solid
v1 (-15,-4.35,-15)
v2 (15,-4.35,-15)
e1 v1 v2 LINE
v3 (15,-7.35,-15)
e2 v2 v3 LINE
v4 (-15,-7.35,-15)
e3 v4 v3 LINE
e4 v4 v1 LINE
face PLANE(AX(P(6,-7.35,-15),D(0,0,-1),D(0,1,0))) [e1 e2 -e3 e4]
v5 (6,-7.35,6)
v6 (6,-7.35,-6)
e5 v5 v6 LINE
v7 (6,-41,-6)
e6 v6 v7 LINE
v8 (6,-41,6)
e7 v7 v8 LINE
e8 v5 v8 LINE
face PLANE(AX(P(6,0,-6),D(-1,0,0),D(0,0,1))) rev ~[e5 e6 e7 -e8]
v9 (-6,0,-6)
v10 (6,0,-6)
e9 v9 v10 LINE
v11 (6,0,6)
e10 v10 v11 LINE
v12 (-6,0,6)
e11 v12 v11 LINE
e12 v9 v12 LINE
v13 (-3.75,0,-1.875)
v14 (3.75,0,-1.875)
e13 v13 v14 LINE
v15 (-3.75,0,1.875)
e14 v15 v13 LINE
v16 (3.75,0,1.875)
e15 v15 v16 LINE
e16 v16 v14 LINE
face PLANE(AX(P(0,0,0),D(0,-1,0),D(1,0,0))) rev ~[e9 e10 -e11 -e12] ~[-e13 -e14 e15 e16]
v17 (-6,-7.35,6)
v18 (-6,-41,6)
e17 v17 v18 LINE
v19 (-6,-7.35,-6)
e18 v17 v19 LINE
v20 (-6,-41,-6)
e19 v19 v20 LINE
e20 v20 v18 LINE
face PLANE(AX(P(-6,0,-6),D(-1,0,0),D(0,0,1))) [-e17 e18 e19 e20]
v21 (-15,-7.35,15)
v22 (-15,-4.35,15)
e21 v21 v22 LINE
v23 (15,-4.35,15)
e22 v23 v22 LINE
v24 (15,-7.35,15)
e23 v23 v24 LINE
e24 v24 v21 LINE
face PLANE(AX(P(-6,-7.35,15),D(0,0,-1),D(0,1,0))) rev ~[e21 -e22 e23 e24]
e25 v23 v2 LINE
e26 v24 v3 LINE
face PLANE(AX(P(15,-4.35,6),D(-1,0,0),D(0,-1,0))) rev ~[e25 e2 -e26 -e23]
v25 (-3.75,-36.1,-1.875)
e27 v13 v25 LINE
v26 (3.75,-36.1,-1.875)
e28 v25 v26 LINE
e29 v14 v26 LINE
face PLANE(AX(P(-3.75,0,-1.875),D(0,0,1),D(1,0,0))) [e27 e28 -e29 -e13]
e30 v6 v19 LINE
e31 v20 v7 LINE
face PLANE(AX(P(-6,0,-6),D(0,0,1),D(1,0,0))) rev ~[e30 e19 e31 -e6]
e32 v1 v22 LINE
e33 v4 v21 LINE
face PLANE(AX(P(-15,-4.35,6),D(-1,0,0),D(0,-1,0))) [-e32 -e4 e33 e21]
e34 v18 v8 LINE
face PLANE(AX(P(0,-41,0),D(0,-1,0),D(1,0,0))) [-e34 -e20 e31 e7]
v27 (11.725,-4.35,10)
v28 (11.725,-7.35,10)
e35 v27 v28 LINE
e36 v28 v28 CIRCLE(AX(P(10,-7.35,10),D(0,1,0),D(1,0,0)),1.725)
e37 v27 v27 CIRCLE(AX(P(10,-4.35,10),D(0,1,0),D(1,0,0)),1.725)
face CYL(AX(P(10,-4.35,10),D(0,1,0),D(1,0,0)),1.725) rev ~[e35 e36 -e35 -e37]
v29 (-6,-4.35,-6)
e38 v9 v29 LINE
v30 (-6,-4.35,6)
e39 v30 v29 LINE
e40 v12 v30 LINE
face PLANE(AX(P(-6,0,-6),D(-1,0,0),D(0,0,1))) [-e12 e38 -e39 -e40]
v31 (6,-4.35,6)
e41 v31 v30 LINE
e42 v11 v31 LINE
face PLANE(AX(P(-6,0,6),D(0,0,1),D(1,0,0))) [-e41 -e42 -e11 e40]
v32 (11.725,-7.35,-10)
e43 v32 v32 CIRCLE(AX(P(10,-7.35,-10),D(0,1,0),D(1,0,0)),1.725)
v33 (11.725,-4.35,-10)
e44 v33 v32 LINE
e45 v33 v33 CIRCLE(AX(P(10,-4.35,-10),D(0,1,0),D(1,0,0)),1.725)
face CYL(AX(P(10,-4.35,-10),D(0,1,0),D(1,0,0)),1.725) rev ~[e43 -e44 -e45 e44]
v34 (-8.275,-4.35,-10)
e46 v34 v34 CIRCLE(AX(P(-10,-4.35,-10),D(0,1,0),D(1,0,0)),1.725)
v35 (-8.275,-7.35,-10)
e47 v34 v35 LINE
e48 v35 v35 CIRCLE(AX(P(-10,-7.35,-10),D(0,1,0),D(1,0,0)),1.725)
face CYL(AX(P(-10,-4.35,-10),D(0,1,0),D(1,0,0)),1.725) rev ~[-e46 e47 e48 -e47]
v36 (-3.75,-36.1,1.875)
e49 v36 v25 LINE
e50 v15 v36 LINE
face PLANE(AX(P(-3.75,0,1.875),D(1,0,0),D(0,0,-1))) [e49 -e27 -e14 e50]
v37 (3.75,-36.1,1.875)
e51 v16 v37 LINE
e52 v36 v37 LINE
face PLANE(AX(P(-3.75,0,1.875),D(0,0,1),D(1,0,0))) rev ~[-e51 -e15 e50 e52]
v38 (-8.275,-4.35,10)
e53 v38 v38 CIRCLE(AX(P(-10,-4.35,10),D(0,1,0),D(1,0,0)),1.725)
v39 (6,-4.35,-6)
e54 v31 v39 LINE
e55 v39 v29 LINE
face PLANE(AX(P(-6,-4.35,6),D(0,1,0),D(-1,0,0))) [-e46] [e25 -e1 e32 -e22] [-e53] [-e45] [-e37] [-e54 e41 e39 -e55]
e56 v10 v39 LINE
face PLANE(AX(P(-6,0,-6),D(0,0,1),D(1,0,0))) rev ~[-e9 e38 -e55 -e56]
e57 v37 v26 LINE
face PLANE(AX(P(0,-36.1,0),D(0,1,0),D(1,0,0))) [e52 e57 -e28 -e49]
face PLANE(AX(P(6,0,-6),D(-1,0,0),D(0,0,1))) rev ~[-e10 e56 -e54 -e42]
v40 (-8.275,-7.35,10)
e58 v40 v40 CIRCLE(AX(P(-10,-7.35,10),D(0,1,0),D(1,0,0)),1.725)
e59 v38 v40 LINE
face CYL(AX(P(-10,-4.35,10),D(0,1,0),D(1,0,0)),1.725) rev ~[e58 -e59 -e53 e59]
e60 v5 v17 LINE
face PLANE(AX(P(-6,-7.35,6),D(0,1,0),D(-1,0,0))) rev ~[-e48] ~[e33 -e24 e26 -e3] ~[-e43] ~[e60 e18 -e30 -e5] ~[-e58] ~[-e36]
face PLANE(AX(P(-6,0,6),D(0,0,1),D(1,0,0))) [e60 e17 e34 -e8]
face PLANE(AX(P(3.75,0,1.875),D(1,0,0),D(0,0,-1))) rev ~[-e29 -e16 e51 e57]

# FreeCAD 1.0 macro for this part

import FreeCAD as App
import Part
import Sketcher

V = App.Vector


def add_polygon(sketch, points):
    """Adds a closed chain of lines whose ends are joined by coincident constraints."""
    first, n = sketch.GeometryCount, len(points)
    for a, b in zip(points, points[1:] + points[:1]):
        sketch.addGeometry(Part.LineSegment(App.Vector(*a, 0), App.Vector(*b, 0)), False)
    for i in range(n):
        sketch.addConstraint(Sketcher.Constraint("Coincident", first + i, 2, first + (i + 1) % n, 1))

doc = App.newDocument("Part")
body = doc.addObject("PartDesign::Body", "Body")

sketch1 = body.newObject("Sketcher::SketchObject", "Sketch")
sketch1.AttachmentSupport = (doc.getObject("XZ_Plane"), [""])
sketch1.MapMode = "FlatFace"
add_polygon(sketch1, [(-6, 6), (-6, -6), (6, -6), (6, 6)])
sketch1.addConstraint(Sketcher.Constraint("Vertical", 0))
sketch1.addConstraint(Sketcher.Constraint("Horizontal", 1))
sketch1.addConstraint(Sketcher.Constraint("Vertical", 2))
sketch1.addConstraint(Sketcher.Constraint("Horizontal", 3))
sketch1.addConstraint(Sketcher.Constraint("Symmetric", 0, 2, 2, 2, -1, 1))
sketch1.addConstraint(Sketcher.Constraint("Equal", 3, 0))
sketch1.addConstraint(Sketcher.Constraint("DistanceX", 1, 1, 1, 2, 12.0))
pad1 = body.newObject("PartDesign::Pad", "Pad")
pad1.Profile = sketch1
pad1.Length = 41

sketch2 = body.newObject("Sketcher::SketchObject", "Sketch001")
sketch2.AttachmentSupport = (doc.getObject("XZ_Plane"), [""])
sketch2.MapMode = "FlatFace"
add_polygon(sketch2, [(-3.8, -1.9), (-3.8, 1.9), (3.8, 1.9), (3.8, -1.9)])
sketch2.addConstraint(Sketcher.Constraint("Vertical", 0))
sketch2.addConstraint(Sketcher.Constraint("Horizontal", 1))
sketch2.addConstraint(Sketcher.Constraint("Vertical", 2))
sketch2.addConstraint(Sketcher.Constraint("Horizontal", 3))
sketch2.addConstraint(Sketcher.Constraint("Symmetric", 0, 2, 2, 2, -1, 1))
sketch2.addConstraint(Sketcher.Constraint("DistanceX", 1, 1, 1, 2, 7.5))
sketch2.addConstraint(Sketcher.Constraint("DistanceY", 0, 1, 0, 2, 3.75))
pocket1 = body.newObject("PartDesign::Pocket", "Pocket")
pocket1.Profile = sketch2
pocket1.Length = 36.1
pocket1.Reversed = True

sketch3 = body.newObject("Sketcher::SketchObject", "Sketch002")
sketch3.AttachmentSupport = (doc.getObject("XY_Plane"), [""])
sketch3.MapMode = "FlatFace"
sketch3.AttachmentOffset = App.Placement(V(0, 0, 6), App.Rotation())
add_polygon(sketch3, [(6, -7.3), (6, -4.3), (-6, -4.3), (-6, -7.3)])
sketch3.addConstraint(Sketcher.Constraint("Vertical", 0))
sketch3.addConstraint(Sketcher.Constraint("Horizontal", 1))
sketch3.addConstraint(Sketcher.Constraint("Vertical", 2))
sketch3.addConstraint(Sketcher.Constraint("Horizontal", 3))
sketch3.addConstraint(Sketcher.Constraint("DistanceX", 1, 2, 1, 1, 12.0))
sketch3.addConstraint(Sketcher.Constraint("DistanceY", 0, 1, 0, 2, 3.0))
sketch3.addConstraint(Sketcher.Constraint("DistanceX", -1, 1, 0, 2, 6.0))
sketch3.addConstraint(Sketcher.Constraint("DistanceY", 0, 2, -1, 1, 4.35))
pad2 = body.newObject("PartDesign::Pad", "Pad001")
pad2.Profile = sketch3
pad2.Length = 9

sketch4 = body.newObject("Sketcher::SketchObject", "Sketch003")
sketch4.AttachmentSupport = (doc.getObject("YZ_Plane"), [""])
sketch4.MapMode = "FlatFace"
sketch4.AttachmentOffset = App.Placement(V(0, 0, 6), App.Rotation())
add_polygon(sketch4, [(-4.3, 6), (-4.3, 15), (-7.3, 15), (-7.3, 6)])
sketch4.addConstraint(Sketcher.Constraint("Vertical", 0))
sketch4.addConstraint(Sketcher.Constraint("Horizontal", 1))
sketch4.addConstraint(Sketcher.Constraint("Vertical", 2))
sketch4.addConstraint(Sketcher.Constraint("Horizontal", 3))
sketch4.addConstraint(Sketcher.Constraint("DistanceX", 1, 2, 1, 1, 3.0))
sketch4.addConstraint(Sketcher.Constraint("DistanceY", 0, 1, 0, 2, 9.0))
sketch4.addConstraint(Sketcher.Constraint("DistanceY", -1, 1, 0, 2, 15.0))
sketch4.addConstraint(Sketcher.Constraint("DistanceX", 0, 2, -1, 1, 4.35))
pad3 = body.newObject("PartDesign::Pad", "Pad002")
pad3.Profile = sketch4
pad3.Length = 9

sketch5 = body.newObject("Sketcher::SketchObject", "Sketch004")
sketch5.AttachmentSupport = (doc.getObject("XY_Plane"), [""])
sketch5.MapMode = "FlatFace"
sketch5.AttachmentOffset = App.Placement(V(0, 0, 6), App.Rotation())
add_polygon(sketch5, [(6, -4.3), (15, -4.3), (15, -7.3), (6, -7.3)])
sketch5.addConstraint(Sketcher.Constraint("Horizontal", 0))
sketch5.addConstraint(Sketcher.Constraint("Vertical", 1))
sketch5.addConstraint(Sketcher.Constraint("Horizontal", 2))
sketch5.addConstraint(Sketcher.Constraint("Vertical", 3))
sketch5.addConstraint(Sketcher.Constraint("DistanceX", 0, 1, 0, 2, 9.0))
sketch5.addConstraint(Sketcher.Constraint("DistanceY", 1, 2, 1, 1, 3.0))
sketch5.addConstraint(Sketcher.Constraint("DistanceX", -1, 1, 0, 2, 15.0))
sketch5.addConstraint(Sketcher.Constraint("DistanceY", 0, 2, -1, 1, 4.35))
pad4 = body.newObject("PartDesign::Pad", "Pad003")
pad4.Profile = sketch5
pad4.Length = 21
pad4.Reversed = True

sketch6 = body.newObject("Sketcher::SketchObject", "Sketch005")
sketch6.AttachmentSupport = (doc.getObject("YZ_Plane"), [""])
sketch6.MapMode = "FlatFace"
sketch6.AttachmentOffset = App.Placement(V(0, 0, 6), App.Rotation())
add_polygon(sketch6, [(-7.3, -15), (-7.3, -6), (-4.3, -6), (-4.3, -15)])
sketch6.addConstraint(Sketcher.Constraint("Vertical", 0))
sketch6.addConstraint(Sketcher.Constraint("Horizontal", 1))
sketch6.addConstraint(Sketcher.Constraint("Vertical", 2))
sketch6.addConstraint(Sketcher.Constraint("Horizontal", 3))
sketch6.addConstraint(Sketcher.Constraint("DistanceX", 1, 1, 1, 2, 3.0))
sketch6.addConstraint(Sketcher.Constraint("DistanceY", 0, 1, 0, 2, 9.0))
sketch6.addConstraint(Sketcher.Constraint("DistanceY", 0, 2, -1, 1, 6.0))
sketch6.addConstraint(Sketcher.Constraint("DistanceX", 0, 2, -1, 1, 7.35))
pad5 = body.newObject("PartDesign::Pad", "Pad004")
pad5.Profile = sketch6
pad5.Length = 21
pad5.Reversed = True

sketch7 = body.newObject("Sketcher::SketchObject", "Sketch006")
sketch7.AttachmentSupport = (doc.getObject("YZ_Plane"), [""])
sketch7.MapMode = "FlatFace"
sketch7.AttachmentOffset = App.Placement(V(0, 0, -6), App.Rotation())
add_polygon(sketch7, [(-7.3, 6), (-7.3, 15), (-4.3, 15), (-4.3, 6)])
sketch7.addConstraint(Sketcher.Constraint("Vertical", 0))
sketch7.addConstraint(Sketcher.Constraint("Horizontal", 1))
sketch7.addConstraint(Sketcher.Constraint("Vertical", 2))
sketch7.addConstraint(Sketcher.Constraint("Horizontal", 3))
sketch7.addConstraint(Sketcher.Constraint("DistanceX", 1, 1, 1, 2, 3.0))
sketch7.addConstraint(Sketcher.Constraint("DistanceY", 0, 1, 0, 2, 9.0))
sketch7.addConstraint(Sketcher.Constraint("DistanceY", -1, 1, 0, 2, 15.0))
sketch7.addConstraint(Sketcher.Constraint("DistanceX", 0, 2, -1, 1, 7.35))
pad6 = body.newObject("PartDesign::Pad", "Pad005")
pad6.Profile = sketch7
pad6.Length = 9
pad6.Reversed = True

sketch8 = body.newObject("Sketcher::SketchObject", "Sketch007")
sketch8.AttachmentSupport = (doc.getObject("XY_Plane"), [""])
sketch8.MapMode = "FlatFace"
sketch8.AttachmentOffset = App.Placement(V(0, 0, 6), App.Rotation())
add_polygon(sketch8, [(-15, -4.3), (-6, -4.3), (-6, -7.3), (-15, -7.3)])
sketch8.addConstraint(Sketcher.Constraint("Horizontal", 0))
sketch8.addConstraint(Sketcher.Constraint("Vertical", 1))
sketch8.addConstraint(Sketcher.Constraint("Horizontal", 2))
sketch8.addConstraint(Sketcher.Constraint("Vertical", 3))
sketch8.addConstraint(Sketcher.Constraint("DistanceX", 0, 1, 0, 2, 9.0))
sketch8.addConstraint(Sketcher.Constraint("DistanceY", 1, 2, 1, 1, 3.0))
sketch8.addConstraint(Sketcher.Constraint("DistanceX", 0, 2, -1, 1, 6.0))
sketch8.addConstraint(Sketcher.Constraint("DistanceY", 0, 2, -1, 1, 4.35))
pad7 = body.newObject("PartDesign::Pad", "Pad006")
pad7.Profile = sketch8
pad7.Length = 12
pad7.Reversed = True

sketch9 = body.newObject("Sketcher::SketchObject", "Sketch008")
sketch9.AttachmentSupport = (doc.getObject("XZ_Plane"), [""])
sketch9.MapMode = "FlatFace"
sketch9.AttachmentOffset = App.Placement(V(0, 0, 4.35), App.Rotation())
sketch9.addGeometry(Part.Circle(V(-10, -10, 0), V(0, 0, 1), 1.7), False)
sketch9.addGeometry(Part.Circle(V(10, -10, 0), V(0, 0, 1), 1.7), False)
sketch9.addGeometry(Part.Circle(V(10, 10, 0), V(0, 0, 1), 1.7), False)
sketch9.addGeometry(Part.Circle(V(-10, 10, 0), V(0, 0, 1), 1.7), False)
sketch9.addConstraint(Sketcher.Constraint("Equal", 0, 1))
sketch9.addConstraint(Sketcher.Constraint("Equal", 1, 2))
sketch9.addConstraint(Sketcher.Constraint("Equal", 2, 3))
sketch9.addConstraint(Sketcher.Constraint("Symmetric", 0, 3, 2, 3, -1, 1))
sketch9.addConstraint(Sketcher.Constraint("Symmetric", 1, 3, 3, 3, -1, 1))
sketch9.addConstraint(Sketcher.Constraint("Symmetric", 0, 3, 1, 3, -2))
sketch9.addConstraint(Sketcher.Constraint("Diameter", 0, 3.45))
sketch9.addConstraint(Sketcher.Constraint("DistanceX", 0, 3, -1, 1, 10.0))
sketch9.addConstraint(Sketcher.Constraint("DistanceY", 0, 3, -1, 1, 10.0))
pocket2 = body.newObject("PartDesign::Pocket", "Pocket001")
pocket2.Profile = sketch9
pocket2.Type = "ThroughAll"
pocket2.Reversed = True

doc.recompute()
